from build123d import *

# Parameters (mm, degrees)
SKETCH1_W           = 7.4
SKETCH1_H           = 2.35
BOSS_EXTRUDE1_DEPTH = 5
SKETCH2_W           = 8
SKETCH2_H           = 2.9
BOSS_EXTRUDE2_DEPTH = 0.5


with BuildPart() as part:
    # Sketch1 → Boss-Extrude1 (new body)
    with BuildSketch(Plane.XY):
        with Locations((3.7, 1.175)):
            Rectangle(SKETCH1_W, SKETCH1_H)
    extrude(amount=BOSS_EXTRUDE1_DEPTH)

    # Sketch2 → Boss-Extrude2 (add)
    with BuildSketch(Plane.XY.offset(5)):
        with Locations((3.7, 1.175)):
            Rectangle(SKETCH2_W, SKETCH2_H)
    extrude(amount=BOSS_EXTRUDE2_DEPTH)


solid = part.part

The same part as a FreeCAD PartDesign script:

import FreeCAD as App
import Part
import Sketcher
Q = App.Units.Quantity


def add_polygon(sketch, points):
    """Adds a closed chain of lines whose ends are joined by coincident constraints."""
    first, n = sketch.GeometryCount, len(points)
    for a, b in zip(points, points[1:] + points[:1]):
        sketch.addGeometry(Part.LineSegment(App.Vector(*a, 0), App.Vector(*b, 0)), False)
    for i in range(n):
        sketch.addConstraint(Sketcher.Constraint("Coincident", first + i, 2, first + (i + 1) % n, 1))

doc = App.newDocument("Part")
body = doc.addObject("PartDesign::Body", "Body")

# Sketch on XY plane
sketch1 = body.newObject("Sketcher::SketchObject", "Sketch")
sketch1.AttachmentSupport = (doc.getObject("XY_Plane"), [""])
sketch1.MapMode = "FlatFace"
add_polygon(sketch1, [(0, 2.4), (0, 0), (7.4, 0), (7.4, 2.4)])  # lines 0-3
sketch1.addConstraint([
    Sketcher.Constraint("Vertical", 0),
    Sketcher.Constraint("Horizontal", 1),
    Sketcher.Constraint("Vertical", 2),
    Sketcher.Constraint("Horizontal", 3),
    Sketcher.Constraint("Coincident", 0, 2, -1, 1),
    Sketcher.Constraint("DistanceX", 1, 1, 1, 2, Q("7.4 mm")),
    Sketcher.Constraint("DistanceY", 0, 2, 0, 1, Q("2.35 mm")),
])
pad1 = body.newObject("PartDesign::Pad", "Pad")
pad1.Profile = sketch1
pad1.Length = 5

# Sketch on XY plane
sketch2 = body.newObject("Sketcher::SketchObject", "Sketch001")
sketch2.AttachmentSupport = (doc.getObject("XY_Plane"), [""])
sketch2.MapMode = "FlatFace"
sketch2.AttachmentOffset = App.Placement(App.Vector(0, 0, 5), App.Rotation())
add_polygon(sketch2, [(-0.3, 2.6), (-0.3, -0.3), (7.7, -0.3), (7.7, 2.6)])  # lines 0-3
sketch2.addConstraint([
    Sketcher.Constraint("Vertical", 0),
    Sketcher.Constraint("Horizontal", 1),
    Sketcher.Constraint("Vertical", 2),
    Sketcher.Constraint("Horizontal", 3),
    Sketcher.Constraint("DistanceX", 1, 1, 1, 2, Q("8 mm")),
    Sketcher.Constraint("DistanceY", 0, 2, 0, 1, Q("2.9 mm")),
    Sketcher.Constraint("DistanceX", 0, 2, -1, 1, Q("0.3 mm")),
    Sketcher.Constraint("DistanceY", 0, 2, -1, 1, Q("0.275 mm")),
])
pad2 = body.newObject("PartDesign::Pad", "Pad001")
pad2.Profile = sketch2
pad2.Length = 0.5

doc.recompute()
